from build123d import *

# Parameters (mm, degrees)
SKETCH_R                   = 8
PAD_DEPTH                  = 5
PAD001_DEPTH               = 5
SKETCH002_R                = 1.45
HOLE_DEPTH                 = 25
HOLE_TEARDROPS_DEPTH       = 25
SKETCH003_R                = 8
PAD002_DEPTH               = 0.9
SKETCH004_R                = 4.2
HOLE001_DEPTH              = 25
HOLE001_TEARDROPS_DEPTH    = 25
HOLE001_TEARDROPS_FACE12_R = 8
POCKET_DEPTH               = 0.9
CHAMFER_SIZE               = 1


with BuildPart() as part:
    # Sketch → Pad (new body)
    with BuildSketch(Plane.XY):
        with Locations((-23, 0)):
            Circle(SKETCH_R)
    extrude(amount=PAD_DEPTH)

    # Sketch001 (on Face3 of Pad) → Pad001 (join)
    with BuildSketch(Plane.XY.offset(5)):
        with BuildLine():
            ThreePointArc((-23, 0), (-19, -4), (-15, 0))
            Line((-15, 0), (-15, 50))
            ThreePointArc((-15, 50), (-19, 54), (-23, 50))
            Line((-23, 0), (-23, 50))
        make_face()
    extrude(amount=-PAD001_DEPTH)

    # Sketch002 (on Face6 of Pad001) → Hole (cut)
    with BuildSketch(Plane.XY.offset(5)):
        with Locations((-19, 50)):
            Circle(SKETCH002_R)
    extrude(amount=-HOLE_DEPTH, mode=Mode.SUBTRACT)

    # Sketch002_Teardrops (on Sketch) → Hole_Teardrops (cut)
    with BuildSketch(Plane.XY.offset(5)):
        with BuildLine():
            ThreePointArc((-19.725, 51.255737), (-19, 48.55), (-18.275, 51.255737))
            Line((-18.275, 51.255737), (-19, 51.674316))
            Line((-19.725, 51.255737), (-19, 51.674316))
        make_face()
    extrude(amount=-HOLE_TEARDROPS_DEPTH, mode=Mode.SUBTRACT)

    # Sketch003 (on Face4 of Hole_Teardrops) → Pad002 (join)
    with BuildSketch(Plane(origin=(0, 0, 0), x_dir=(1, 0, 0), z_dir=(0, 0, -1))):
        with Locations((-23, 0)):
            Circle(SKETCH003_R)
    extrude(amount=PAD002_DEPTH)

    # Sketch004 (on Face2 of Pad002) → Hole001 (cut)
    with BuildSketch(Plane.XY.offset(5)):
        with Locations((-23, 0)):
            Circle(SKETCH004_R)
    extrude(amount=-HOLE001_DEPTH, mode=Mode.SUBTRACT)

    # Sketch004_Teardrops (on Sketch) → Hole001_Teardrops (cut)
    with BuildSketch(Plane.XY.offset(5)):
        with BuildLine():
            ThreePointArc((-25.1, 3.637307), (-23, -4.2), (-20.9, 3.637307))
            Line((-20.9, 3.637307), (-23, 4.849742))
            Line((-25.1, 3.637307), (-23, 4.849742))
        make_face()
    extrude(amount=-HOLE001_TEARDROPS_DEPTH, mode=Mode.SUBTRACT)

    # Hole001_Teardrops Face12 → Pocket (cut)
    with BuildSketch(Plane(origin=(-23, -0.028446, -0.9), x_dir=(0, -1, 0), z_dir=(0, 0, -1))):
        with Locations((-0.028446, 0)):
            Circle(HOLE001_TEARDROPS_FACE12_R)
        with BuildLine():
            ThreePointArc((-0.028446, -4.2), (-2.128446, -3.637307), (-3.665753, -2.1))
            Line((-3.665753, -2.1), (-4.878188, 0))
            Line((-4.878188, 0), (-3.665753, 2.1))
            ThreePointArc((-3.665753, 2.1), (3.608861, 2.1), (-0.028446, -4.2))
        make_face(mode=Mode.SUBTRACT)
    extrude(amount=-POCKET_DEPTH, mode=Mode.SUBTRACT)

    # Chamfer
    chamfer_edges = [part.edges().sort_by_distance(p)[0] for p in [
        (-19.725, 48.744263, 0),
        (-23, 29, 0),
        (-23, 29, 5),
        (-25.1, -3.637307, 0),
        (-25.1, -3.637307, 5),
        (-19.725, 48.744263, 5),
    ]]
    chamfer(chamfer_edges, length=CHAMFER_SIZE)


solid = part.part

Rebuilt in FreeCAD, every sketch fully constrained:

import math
import FreeCAD as App
import Part
import Sketcher

V = App.Vector
Q = App.Units.Quantity


def edges_at(feature, points):
    """Names of the edges that pass closest to the given points."""
    edges = feature.Shape.Edges
    near = lambda p: min(range(len(edges)), key=lambda i: edges[i].distToShape(Part.Vertex(*p))[0])
    return sorted({f"Edge{near(p) + 1}" for p in points})

doc = App.newDocument("Part")
params = doc.addObject("Spreadsheet::Sheet", "Params")
for row, (alias, value) in enumerate([
    ("sketch1_diameter", "16 mm"),
    ("pad1_length", "5 mm"),
    ("sketch2_radius", "4 mm"),
    ("sketch2_height", "50 mm"),
    ("pad2_length", "5 mm"),
    ("sketch3_diameter", "2.9 mm"),
    ("pocket1_length", "25 mm"),
    ("sketch4_radius", "1.45 mm"),
    ("pocket2_length", "25 mm"),
    ("sketch5_diameter", "16 mm"),
    ("pad3_length", "0.9 mm"),
    ("sketch6_diameter", "8.4 mm"),
    ("pocket3_length", "25 mm"),
    ("sketch7_radius", "4.2 mm"),
    ("pocket4_length", "25 mm"),
    ("sketch8_diameter", "16 mm"),
    ("sketch8_radius", "4.2 mm"),
    ("pocket5_length", "0.9 mm"),
    ("chamfer_size", "1 mm"),
], start=1):
    params.set(f"A{row}", alias)
    params.set(f"B{row}", "=" + value)
    params.setAlias(f"B{row}", alias)

body = doc.addObject("PartDesign::Body", "Body")

# Sketch on XY plane
sketch1 = body.newObject("Sketcher::SketchObject", "Sketch")
sketch1.AttachmentSupport = (doc.getObject("XY_Plane"), [""])
sketch1.MapMode = "FlatFace"
sketch1.addGeometry(Part.Circle(V(-23, 0, 0), V(0, 0, 1), 8), False)
sketch1.addConstraint(Sketcher.Constraint("PointOnObject", 0, 3, -1))
sketch1.addConstraint(Sketcher.Constraint("Diameter", 0, 16.0))
sketch1.addConstraint(Sketcher.Constraint("DistanceX", 0, 3, -1, 1, 23.0))
sketch1.setExpression("Constraints[1]", "Params.sketch1_diameter")
pad1 = body.newObject("PartDesign::Pad", "Pad")
pad1.Profile = sketch1
pad1.setExpression("Length", "Params.pad1_length")

# Sketch on XY plane
sketch2 = body.newObject("Sketcher::SketchObject", "Sketch001")
sketch2.AttachmentSupport = (doc.getObject("XY_Plane"), [""])
sketch2.MapMode = "FlatFace"
sketch2.AttachmentOffset = App.Placement(V(0, 0, 5), App.Rotation())
sketch2.addGeometry(Part.ArcOfCircle(Part.Circle(V(-19, 0, 0), V(0, 0, 1), 4), math.radians(180), math.radians(360)), False)
sketch2.addGeometry(Part.LineSegment(V(-15, 0, 0), V(-15, 50, 0)), False)
sketch2.addGeometry(Part.ArcOfCircle(Part.Circle(V(-19, 50, 0), V(0, 0, 1), 4), math.radians(0), math.radians(180)), False)
sketch2.addGeometry(Part.LineSegment(V(-23, 50, 0), V(-23, 0, 0)), False)
sketch2.addConstraint(Sketcher.Constraint("Tangent", 0, 2, 1, 1))
sketch2.addConstraint(Sketcher.Constraint("Tangent", 1, 2, 2, 1))
sketch2.addConstraint(Sketcher.Constraint("Tangent", 2, 2, 3, 1))
sketch2.addConstraint(Sketcher.Constraint("Tangent", 3, 2, 0, 1))
sketch2.addConstraint(Sketcher.Constraint("Vertical", 1))
sketch2.addConstraint(Sketcher.Constraint("Vertical", 3))
sketch2.addConstraint(Sketcher.Constraint("PointOnObject", 0, 3, -1))
sketch2.addConstraint(Sketcher.Constraint("Radius", 0, 4.0))
sketch2.addConstraint(Sketcher.Constraint("DistanceY", 1, 1, 1, 2, 50.0))
sketch2.addConstraint(Sketcher.Constraint("DistanceX", 0, 3, -1, 1, 19.0))
sketch2.setExpression("Constraints[7]", "Params.sketch2_radius")
sketch2.setExpression("Constraints[8]", "Params.sketch2_height")
pad2 = body.newObject("PartDesign::Pad", "Pad001")
pad2.Profile = sketch2
pad2.setExpression("Length", "Params.pad2_length")
pad2.Reversed = True

# Sketch on XY plane
sketch3 = body.newObject("Sketcher::SketchObject", "Sketch002")
sketch3.AttachmentSupport = (doc.getObject("XY_Plane"), [""])
sketch3.MapMode = "FlatFace"
sketch3.AttachmentOffset = App.Placement(V(0, 0, 5), App.Rotation())
sketch3.addGeometry(Part.Circle(V(-19, 50, 0), V(0, 0, 1), 1.4), False)
sketch3.addConstraint(Sketcher.Constraint("Diameter", 0, 2.9))
sketch3.addConstraint(Sketcher.Constraint("DistanceX", 0, 3, -1, 1, 19.0))
sketch3.addConstraint(Sketcher.Constraint("DistanceY", -1, 1, 0, 3, 50.0))
sketch3.setExpression("Constraints[0]", "Params.sketch3_diameter")
pocket1 = body.newObject("PartDesign::Pocket", "Pocket")
pocket1.Profile = sketch3
pocket1.setExpression("Length", "Params.pocket1_length")

# Sketch on XY plane
sketch4 = body.newObject("Sketcher::SketchObject", "Sketch003")
sketch4.AttachmentSupport = (doc.getObject("XY_Plane"), [""])
sketch4.MapMode = "FlatFace"
sketch4.AttachmentOffset = App.Placement(V(0, 0, 5), App.Rotation())
sketch4.addGeometry(Part.ArcOfCircle(Part.Circle(V(-19, 50, 0), V(0, 0, 1), 1.5), math.radians(120), math.radians(420)), False)
sketch4.addGeometry(Part.LineSegment(V(-18.3, 51.3, 0), V(-19, 51.7, 0)), False)
sketch4.addGeometry(Part.LineSegment(V(-19, 51.7, 0), V(-19.7, 51.3, 0)), False)
sketch4.addConstraint(Sketcher.Constraint("Tangent", 0, 2, 1, 1))
sketch4.addConstraint(Sketcher.Constraint("Coincident", 1, 2, 2, 1))
sketch4.addConstraint(Sketcher.Constraint("Tangent", 2, 2, 0, 1))
sketch4.addConstraint(Sketcher.Constraint("Horizontal", 0, 2, 2, 2))
sketch4.addConstraint(Sketcher.Constraint("Angle", 1, Q("149.999997 deg")))
sketch4.addConstraint(Sketcher.Constraint("Radius", 0, 1.45))
sketch4.addConstraint(Sketcher.Constraint("DistanceX", 0, 3, -1, 1, 19.0))
sketch4.addConstraint(Sketcher.Constraint("DistanceY", -1, 1, 0, 3, 50.0))
sketch4.setExpression("Constraints[5]", "Params.sketch4_radius")
pocket2 = body.newObject("PartDesign::Pocket", "Pocket001")
pocket2.Profile = sketch4
pocket2.setExpression("Length", "Params.pocket2_length")

# Sketch on XY plane
sketch5 = body.newObject("Sketcher::SketchObject", "Sketch004")
sketch5.AttachmentSupport = (doc.getObject("XY_Plane"), [""])
sketch5.MapMode = "FlatFace"
sketch5.addGeometry(Part.Circle(V(-23, 0, 0), V(0, 0, 1), 8), False)
sketch5.addConstraint(Sketcher.Constraint("PointOnObject", 0, 3, -1))
sketch5.addConstraint(Sketcher.Constraint("Diameter", 0, 16.0))
sketch5.addConstraint(Sketcher.Constraint("DistanceX", 0, 3, -1, 1, 23.0))
sketch5.setExpression("Constraints[1]", "Params.sketch5_diameter")
pad3 = body.newObject("PartDesign::Pad", "Pad002")
pad3.Profile = sketch5
pad3.setExpression("Length", "Params.pad3_length")
pad3.Reversed = True

# Sketch on XY plane
sketch6 = body.newObject("Sketcher::SketchObject", "Sketch005")
sketch6.AttachmentSupport = (doc.getObject("XY_Plane"), [""])
sketch6.MapMode = "FlatFace"
sketch6.AttachmentOffset = App.Placement(V(0, 0, 5), App.Rotation())
sketch6.addGeometry(Part.Circle(V(-23, 0, 0), V(0, 0, 1), 4.2), False)
sketch6.addConstraint(Sketcher.Constraint("PointOnObject", 0, 3, -1))
sketch6.addConstraint(Sketcher.Constraint("Diameter", 0, 8.4))
sketch6.addConstraint(Sketcher.Constraint("DistanceX", 0, 3, -1, 1, 23.0))
sketch6.setExpression("Constraints[1]", "Params.sketch6_diameter")
pocket3 = body.newObject("PartDesign::Pocket", "Pocket002")
pocket3.Profile = sketch6
pocket3.setExpression("Length", "Params.pocket3_length")

# Sketch on XY plane
sketch7 = body.newObject("Sketcher::SketchObject", "Sketch006")
sketch7.AttachmentSupport = (doc.getObject("XY_Plane"), [""])
sketch7.MapMode = "FlatFace"
sketch7.AttachmentOffset = App.Placement(V(0, 0, 5), App.Rotation())
sketch7.addGeometry(Part.ArcOfCircle(Part.Circle(V(-23, 0, 0), V(0, 0, 1), 4.2), math.radians(120), math.radians(420)), False)
sketch7.addGeometry(Part.LineSegment(V(-20.9, 3.6, 0), V(-23, 4.8, 0)), False)
sketch7.addGeometry(Part.LineSegment(V(-23, 4.8, 0), V(-25.1, 3.6, 0)), False)
sketch7.addConstraint(Sketcher.Constraint("Tangent", 0, 2, 1, 1))
sketch7.addConstraint(Sketcher.Constraint("Coincident", 1, 2, 2, 1))
sketch7.addConstraint(Sketcher.Constraint("Tangent", 2, 2, 0, 1))
sketch7.addConstraint(Sketcher.Constraint("PointOnObject", 0, 3, -1))
sketch7.addConstraint(Sketcher.Constraint("Horizontal", 0, 2, 2, 2))
sketch7.addConstraint(Sketcher.Constraint("Radius", 0, 4.2))
sketch7.addConstraint(Sketcher.Constraint("Angle", 1, Q("150.000012 deg")))
sketch7.addConstraint(Sketcher.Constraint("DistanceX", 0, 3, -1, 1, 23.0))
sketch7.setExpression("Constraints[5]", "Params.sketch7_radius")
pocket4 = body.newObject("PartDesign::Pocket", "Pocket003")
pocket4.Profile = sketch7
pocket4.setExpression("Length", "Params.pocket4_length")

# Sketch on XY plane
sketch8 = body.newObject("Sketcher::SketchObject", "Sketch007")
sketch8.AttachmentSupport = (doc.getObject("XY_Plane"), [""])
sketch8.MapMode = "FlatFace"
sketch8.AttachmentOffset = App.Placement(V(0, 0, -0.9), App.Rotation())
sketch8.addGeometry(Part.Circle(V(-23, 0, 0), V(0, 0, 1), 8), False)
sketch8.addGeometry(Part.ArcOfCircle(Part.Circle(V(-23, 0, 0), V(0, 0, 1), 4.2), math.radians(120), math.radians(360)), False)
sketch8.addGeometry(Part.ArcOfCircle(Part.Circle(V(-23, 0, 0), V(0, 0, 1), 4.2), math.radians(0), math.radians(60)), False)
sketch8.addGeometry(Part.LineSegment(V(-20.9, 3.6, 0), V(-23, 4.8, 0)), False)
sketch8.addGeometry(Part.LineSegment(V(-23, 4.8, 0), V(-25.1, 3.6, 0)), False)
sketch8.addConstraint(Sketcher.Constraint("Tangent", 1, 2, 2, 1))
sketch8.addConstraint(Sketcher.Constraint("Tangent", 2, 2, 3, 1))
sketch8.addConstraint(Sketcher.Constraint("Coincident", 3, 2, 4, 1))
sketch8.addConstraint(Sketcher.Constraint("Tangent", 4, 2, 1, 1))
sketch8.addConstraint(Sketcher.Constraint("Coincident", 1, 3, 0, 3))
sketch8.addConstraint(Sketcher.Constraint("Equal", 1, 2))
sketch8.addConstraint(Sketcher.Constraint("PointOnObject", 0, 3, -1))
sketch8.addConstraint(Sketcher.Constraint("PointOnObject", 1, 2, -1))
sketch8.addConstraint(Sketcher.Constraint("Horizontal", 2, 2, 4, 2))
sketch8.addConstraint(Sketcher.Constraint("Diameter", 0, 16.0))
sketch8.addConstraint(Sketcher.Constraint("Radius", 1, 4.2))
sketch8.addConstraint(Sketcher.Constraint("Angle", 3, Q("150.000012 deg")))
sketch8.addConstraint(Sketcher.Constraint("DistanceX", 0, 3, -1, 1, 23.0))
sketch8.setExpression("Constraints[9]", "Params.sketch8_diameter")
sketch8.setExpression("Constraints[10]", "Params.sketch8_radius")
pocket5 = body.newObject("PartDesign::Pocket", "Pocket004")
pocket5.Profile = sketch8
pocket5.setExpression("Length", "Params.pocket5_length")
pocket5.Reversed = True
doc.recompute()

chamfer = body.newObject("PartDesign::Chamfer", "Chamfer")
chamfer.Base = (pocket5, edges_at(pocket5, [
    (-19, 48.55, 0),
    (-23, 29, 0),
    (-23, 29, 5),
    (-25.1, -3.637, 0),
    (-23, -4.2, 5),
    (-19, 48.55, 5),
]))
chamfer.setExpression("Size", "Params.chamfer_size")

doc.recompute()
